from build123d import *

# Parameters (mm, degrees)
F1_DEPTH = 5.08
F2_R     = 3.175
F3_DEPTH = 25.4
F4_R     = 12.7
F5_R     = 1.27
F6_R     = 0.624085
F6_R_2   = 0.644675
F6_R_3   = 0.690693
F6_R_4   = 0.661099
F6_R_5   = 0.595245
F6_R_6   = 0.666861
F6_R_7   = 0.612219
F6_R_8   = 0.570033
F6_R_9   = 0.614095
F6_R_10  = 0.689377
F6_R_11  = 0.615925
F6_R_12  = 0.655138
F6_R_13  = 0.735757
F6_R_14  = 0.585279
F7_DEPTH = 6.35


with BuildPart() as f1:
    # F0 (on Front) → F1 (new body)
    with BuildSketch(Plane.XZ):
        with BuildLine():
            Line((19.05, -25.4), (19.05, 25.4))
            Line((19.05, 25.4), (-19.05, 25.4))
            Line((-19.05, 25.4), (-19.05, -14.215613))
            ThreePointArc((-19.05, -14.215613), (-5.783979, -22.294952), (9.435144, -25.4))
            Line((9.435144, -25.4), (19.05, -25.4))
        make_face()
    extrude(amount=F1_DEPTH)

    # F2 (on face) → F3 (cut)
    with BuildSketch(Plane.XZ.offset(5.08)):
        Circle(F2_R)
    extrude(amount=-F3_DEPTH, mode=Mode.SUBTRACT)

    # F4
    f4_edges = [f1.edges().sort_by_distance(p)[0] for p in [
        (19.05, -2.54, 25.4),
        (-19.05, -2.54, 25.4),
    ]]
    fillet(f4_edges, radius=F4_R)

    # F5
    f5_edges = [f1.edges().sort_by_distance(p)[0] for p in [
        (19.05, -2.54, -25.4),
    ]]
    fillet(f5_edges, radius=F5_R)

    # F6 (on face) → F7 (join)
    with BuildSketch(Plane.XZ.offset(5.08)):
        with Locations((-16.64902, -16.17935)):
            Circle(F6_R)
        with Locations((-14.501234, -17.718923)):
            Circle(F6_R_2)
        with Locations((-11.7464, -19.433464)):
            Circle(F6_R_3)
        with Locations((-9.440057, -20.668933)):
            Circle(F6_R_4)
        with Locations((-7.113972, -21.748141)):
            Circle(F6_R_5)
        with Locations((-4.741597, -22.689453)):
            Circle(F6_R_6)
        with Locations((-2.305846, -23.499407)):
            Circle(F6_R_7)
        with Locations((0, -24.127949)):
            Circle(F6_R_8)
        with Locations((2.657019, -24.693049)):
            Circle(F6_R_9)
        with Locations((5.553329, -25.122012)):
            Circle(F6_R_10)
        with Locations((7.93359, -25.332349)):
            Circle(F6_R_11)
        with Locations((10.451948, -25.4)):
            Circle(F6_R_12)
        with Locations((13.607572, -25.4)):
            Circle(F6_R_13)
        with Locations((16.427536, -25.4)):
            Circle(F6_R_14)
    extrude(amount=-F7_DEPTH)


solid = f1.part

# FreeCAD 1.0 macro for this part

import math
import FreeCAD as App
import Part
import Sketcher
from FreeCAD import Vector
Q = App.Units.Quantity


def edges_at(feature, points):
    """Names of the edges that pass closest to the given points."""
    edges = feature.Shape.Edges
    near = lambda p: min(range(len(edges)), key=lambda i: edges[i].distToShape(Part.Vertex(*p))[0])
    return sorted({f"Edge{near(p) + 1}" for p in points})

doc = App.newDocument("Part")
body = doc.addObject("PartDesign::Body", "Body")

# Sketch on XZ plane
sketch1 = body.newObject("Sketcher::SketchObject", "Sketch")
sketch1.AttachmentSupport = (doc.getObject("XZ_Plane"), [""])
sketch1.MapMode = "FlatFace"
sketch1.addGeometry([
    Part.LineSegment(Vector(19, -25, 0), Vector(19, 25, 0)),  # 0
    Part.LineSegment(Vector(19, 25, 0), Vector(-19, 25, 0)),  # 1
    Part.LineSegment(Vector(-19, 25, 0), Vector(-19, -14, 0)),  # 2
    Part.ArcOfCircle(Part.Circle(Vector(11, 20, 0), Vector(0, 0, 1), 45), math.radians(-131), math.radians(-92)),  # 3
    Part.LineSegment(Vector(9, -25, 0), Vector(19, -25, 0)),  # 4
], False)
sketch1.addConstraint([
    Sketcher.Constraint("Coincident", 0, 2, 1, 1),
    Sketcher.Constraint("Coincident", 1, 2, 2, 1),
    Sketcher.Constraint("Coincident", 2, 2, 3, 1),
    Sketcher.Constraint("Coincident", 3, 2, 4, 1),
    Sketcher.Constraint("Coincident", 4, 2, 0, 1),
    Sketcher.Constraint("Vertical", 0),
    Sketcher.Constraint("Horizontal", 1),
    Sketcher.Constraint("Vertical", 2),
    Sketcher.Constraint("Horizontal", 4),
    Sketcher.Constraint("Symmetric", 1, 2, 4, 2, -1, 1),
    Sketcher.Constraint("DistanceY", 0, 1, 0, 2, Q("2 in")),
    Sketcher.Constraint("DistanceX", 1, 2, 1, 1, Q("1.5 in")),
    Sketcher.Constraint("Radius", 3, Q("45.14665 mm")),
    Sketcher.Constraint("DistanceX", 4, 1, 4, 2, Q("9.614856 mm")),
    Sketcher.Constraint("DistanceY", 2, 2, 2, 1, Q("39.615613 mm")),
])
pad1 = body.newObject("PartDesign::Pad", "Pad")
pad1.Profile = sketch1
pad1.Length = Q("0.2 in")

# Sketch on XZ plane
sketch2 = body.newObject("Sketcher::SketchObject", "Sketch001")
sketch2.AttachmentSupport = (doc.getObject("XZ_Plane"), [""])
sketch2.MapMode = "FlatFace"
sketch2.AttachmentOffset = App.Placement(Vector(0, 0, 0.2 * 25.4), App.Rotation())
sketch2.addGeometry(Part.Circle(Vector(0, 0, 0), Vector(0, 0, 1), 3.2), False)
sketch2.addConstraint([
    Sketcher.Constraint("Coincident", 0, 3, -1, 1),
    Sketcher.Constraint("Diameter", 0, Q("0.25 in")),
])
pocket1 = body.newObject("PartDesign::Pocket", "Pocket")
pocket1.Profile = sketch2
pocket1.Length = Q("1 in")
doc.recompute()

fillet = body.newObject("PartDesign::Fillet", "Fillet")
fillet.Base = (pocket1, edges_at(pocket1, [(19.05, -2.54, 25.4), (-19.05, -2.54, 25.4)]))
fillet.Radius = Q("0.5 in")
doc.recompute()

fillet2 = body.newObject("PartDesign::Fillet", "Fillet001")
fillet2.Base = (fillet, edges_at(fillet, [(19.05, -2.54, -25.4)]))
fillet2.Radius = Q("0.05 in")

# Sketch on XZ plane
sketch3 = body.newObject("Sketcher::SketchObject", "Sketch002")
sketch3.AttachmentSupport = (doc.getObject("XZ_Plane"), [""])
sketch3.MapMode = "FlatFace"
sketch3.AttachmentOffset = App.Placement(Vector(0, 0, 0.2 * 25.4), App.Rotation())
sketch3.addGeometry([
    Part.Circle(Vector(-16.6, -16.2, 0), Vector(0, 0, 1), 0.6),  # 0
    Part.Circle(Vector(-14.5, -17.7, 0), Vector(0, 0, 1), 0.6),  # 1
    Part.Circle(Vector(-11.7, -19.4, 0), Vector(0, 0, 1), 0.7),  # 2
    Part.Circle(Vector(-9.4, -20.7, 0), Vector(0, 0, 1), 0.7),  # 3
    Part.Circle(Vector(-7.1, -21.7, 0), Vector(0, 0, 1), 0.6),  # 4
    Part.Circle(Vector(-4.7, -22.7, 0), Vector(0, 0, 1), 0.7),  # 5
    Part.Circle(Vector(-2.3, -23.5, 0), Vector(0, 0, 1), 0.6),  # 6
    Part.Circle(Vector(0, -24.1, 0), Vector(0, 0, 1), 0.6),  # 7
    Part.Circle(Vector(2.7, -24.7, 0), Vector(0, 0, 1), 0.6),  # 8
    Part.Circle(Vector(5.6, -25.1, 0), Vector(0, 0, 1), 0.7),  # 9
    Part.Circle(Vector(7.9, -25.3, 0), Vector(0, 0, 1), 0.6),  # 10
    Part.Circle(Vector(10.5, -25.4, 0), Vector(0, 0, 1), 0.7),  # 11
    Part.Circle(Vector(13.6, -25.4, 0), Vector(0, 0, 1), 0.7),  # 12
    Part.Circle(Vector(16.4, -25.4, 0), Vector(0, 0, 1), 0.6),  # 13
], False)
sketch3.addConstraint([
    Sketcher.Constraint("PointOnObject", 7, 3, -2),
    Sketcher.Constraint("Horizontal", 11, 3, 12, 3),
    Sketcher.Constraint("Horizontal", 12, 3, 13, 3),
    Sketcher.Constraint("DistanceY", 11, 3, -1, 1, Q("1 in")),
    Sketcher.Constraint("Diameter", 0, Q("1.24817 mm")),
    Sketcher.Constraint("Diameter", 1, Q("1.28935 mm")),
    Sketcher.Constraint("Diameter", 4, Q("1.19049 mm")),
    Sketcher.Constraint("Diameter", 8, Q("1.22819 mm")),
    Sketcher.Constraint("Diameter", 10, Q("1.23185 mm")),
    Sketcher.Constraint("Diameter", 2, Q("1.381386 mm")),
    Sketcher.Constraint("Diameter", 3, Q("1.322198 mm")),
    Sketcher.Constraint("Diameter", 5, Q("1.333722 mm")),
    Sketcher.Constraint("Diameter", 6, Q("1.224438 mm")),
    Sketcher.Constraint("Diameter", 7, Q("1.140066 mm")),
    Sketcher.Constraint("Diameter", 9, Q("1.378754 mm")),
    Sketcher.Constraint("Diameter", 11, Q("1.310276 mm")),
    Sketcher.Constraint("Diameter", 12, Q("1.471514 mm")),
    Sketcher.Constraint("Diameter", 13, Q("1.170558 mm")),
    Sketcher.Constraint("DistanceX", 2, 3, -1, 1, Q("11.7464 mm")),
    Sketcher.Constraint("DistanceY", 8, 3, 7, 3, Q("0.5651 mm")),
    Sketcher.Constraint("DistanceX", 4, 3, 9, 3, Q("12.667301 mm")),
    Sketcher.Constraint("DistanceY", 10, 3, 8, 3, Q("0.6393 mm")),
    Sketcher.Constraint("DistanceX", 0, 3, -1, 1, Q("16.64902 mm")),
    Sketcher.Constraint("DistanceY", 0, 3, -1, 1, Q("16.17935 mm")),
    Sketcher.Constraint("DistanceY", 4, 3, -1, 1, Q("21.748141 mm")),
    Sketcher.Constraint("DistanceY", 7, 3, -1, 1, Q("24.127949 mm")),
    Sketcher.Constraint("DistanceX", -1, 1, 8, 3, Q("2.657019 mm")),
    Sketcher.Constraint("DistanceX", -1, 1, 9, 3, Q("5.553329 mm")),
    Sketcher.Constraint("DistanceX", -1, 1, 10, 3, Q("7.93359 mm")),
    Sketcher.Constraint("DistanceX", -1, 1, 12, 3, Q("13.607572 mm")),
    Sketcher.Constraint("DistanceY", 2, 3, 1, 3, Q("1.714541 mm")),
    Sketcher.Constraint("DistanceY", 3, 3, 2, 3, Q("1.235469 mm")),
    Sketcher.Constraint("DistanceY", 4, 3, 3, 3, Q("1.079208 mm")),
    Sketcher.Constraint("DistanceX", 1, 3, 4, 3, Q("7.387262 mm")),
    Sketcher.Constraint("DistanceY", 5, 3, 4, 3, Q("0.941312 mm")),
    Sketcher.Constraint("DistanceX", 3, 3, 5, 3, Q("4.69846 mm")),
    Sketcher.Constraint("DistanceX", 5, 3, 6, 3, Q("2.435751 mm")),
    Sketcher.Constraint("DistanceX", 1, 3, 6, 3, Q("12.195388 mm")),
    Sketcher.Constraint("DistanceY", 7, 3, 6, 3, Q("0.628542 mm")),
    Sketcher.Constraint("DistanceY", 9, 3, 5, 3, Q("2.432559 mm")),
    Sketcher.Constraint("DistanceX", 10, 3, 11, 3, Q("2.518358 mm")),
    Sketcher.Constraint("DistanceX", -1, 1, 13, 3, Q("16.427536 mm")),
])
pad2 = body.newObject("PartDesign::Pad", "Pad001")
pad2.Profile = sketch3
pad2.Length = Q("0.25 in")
pad2.Reversed = True

doc.recompute()
